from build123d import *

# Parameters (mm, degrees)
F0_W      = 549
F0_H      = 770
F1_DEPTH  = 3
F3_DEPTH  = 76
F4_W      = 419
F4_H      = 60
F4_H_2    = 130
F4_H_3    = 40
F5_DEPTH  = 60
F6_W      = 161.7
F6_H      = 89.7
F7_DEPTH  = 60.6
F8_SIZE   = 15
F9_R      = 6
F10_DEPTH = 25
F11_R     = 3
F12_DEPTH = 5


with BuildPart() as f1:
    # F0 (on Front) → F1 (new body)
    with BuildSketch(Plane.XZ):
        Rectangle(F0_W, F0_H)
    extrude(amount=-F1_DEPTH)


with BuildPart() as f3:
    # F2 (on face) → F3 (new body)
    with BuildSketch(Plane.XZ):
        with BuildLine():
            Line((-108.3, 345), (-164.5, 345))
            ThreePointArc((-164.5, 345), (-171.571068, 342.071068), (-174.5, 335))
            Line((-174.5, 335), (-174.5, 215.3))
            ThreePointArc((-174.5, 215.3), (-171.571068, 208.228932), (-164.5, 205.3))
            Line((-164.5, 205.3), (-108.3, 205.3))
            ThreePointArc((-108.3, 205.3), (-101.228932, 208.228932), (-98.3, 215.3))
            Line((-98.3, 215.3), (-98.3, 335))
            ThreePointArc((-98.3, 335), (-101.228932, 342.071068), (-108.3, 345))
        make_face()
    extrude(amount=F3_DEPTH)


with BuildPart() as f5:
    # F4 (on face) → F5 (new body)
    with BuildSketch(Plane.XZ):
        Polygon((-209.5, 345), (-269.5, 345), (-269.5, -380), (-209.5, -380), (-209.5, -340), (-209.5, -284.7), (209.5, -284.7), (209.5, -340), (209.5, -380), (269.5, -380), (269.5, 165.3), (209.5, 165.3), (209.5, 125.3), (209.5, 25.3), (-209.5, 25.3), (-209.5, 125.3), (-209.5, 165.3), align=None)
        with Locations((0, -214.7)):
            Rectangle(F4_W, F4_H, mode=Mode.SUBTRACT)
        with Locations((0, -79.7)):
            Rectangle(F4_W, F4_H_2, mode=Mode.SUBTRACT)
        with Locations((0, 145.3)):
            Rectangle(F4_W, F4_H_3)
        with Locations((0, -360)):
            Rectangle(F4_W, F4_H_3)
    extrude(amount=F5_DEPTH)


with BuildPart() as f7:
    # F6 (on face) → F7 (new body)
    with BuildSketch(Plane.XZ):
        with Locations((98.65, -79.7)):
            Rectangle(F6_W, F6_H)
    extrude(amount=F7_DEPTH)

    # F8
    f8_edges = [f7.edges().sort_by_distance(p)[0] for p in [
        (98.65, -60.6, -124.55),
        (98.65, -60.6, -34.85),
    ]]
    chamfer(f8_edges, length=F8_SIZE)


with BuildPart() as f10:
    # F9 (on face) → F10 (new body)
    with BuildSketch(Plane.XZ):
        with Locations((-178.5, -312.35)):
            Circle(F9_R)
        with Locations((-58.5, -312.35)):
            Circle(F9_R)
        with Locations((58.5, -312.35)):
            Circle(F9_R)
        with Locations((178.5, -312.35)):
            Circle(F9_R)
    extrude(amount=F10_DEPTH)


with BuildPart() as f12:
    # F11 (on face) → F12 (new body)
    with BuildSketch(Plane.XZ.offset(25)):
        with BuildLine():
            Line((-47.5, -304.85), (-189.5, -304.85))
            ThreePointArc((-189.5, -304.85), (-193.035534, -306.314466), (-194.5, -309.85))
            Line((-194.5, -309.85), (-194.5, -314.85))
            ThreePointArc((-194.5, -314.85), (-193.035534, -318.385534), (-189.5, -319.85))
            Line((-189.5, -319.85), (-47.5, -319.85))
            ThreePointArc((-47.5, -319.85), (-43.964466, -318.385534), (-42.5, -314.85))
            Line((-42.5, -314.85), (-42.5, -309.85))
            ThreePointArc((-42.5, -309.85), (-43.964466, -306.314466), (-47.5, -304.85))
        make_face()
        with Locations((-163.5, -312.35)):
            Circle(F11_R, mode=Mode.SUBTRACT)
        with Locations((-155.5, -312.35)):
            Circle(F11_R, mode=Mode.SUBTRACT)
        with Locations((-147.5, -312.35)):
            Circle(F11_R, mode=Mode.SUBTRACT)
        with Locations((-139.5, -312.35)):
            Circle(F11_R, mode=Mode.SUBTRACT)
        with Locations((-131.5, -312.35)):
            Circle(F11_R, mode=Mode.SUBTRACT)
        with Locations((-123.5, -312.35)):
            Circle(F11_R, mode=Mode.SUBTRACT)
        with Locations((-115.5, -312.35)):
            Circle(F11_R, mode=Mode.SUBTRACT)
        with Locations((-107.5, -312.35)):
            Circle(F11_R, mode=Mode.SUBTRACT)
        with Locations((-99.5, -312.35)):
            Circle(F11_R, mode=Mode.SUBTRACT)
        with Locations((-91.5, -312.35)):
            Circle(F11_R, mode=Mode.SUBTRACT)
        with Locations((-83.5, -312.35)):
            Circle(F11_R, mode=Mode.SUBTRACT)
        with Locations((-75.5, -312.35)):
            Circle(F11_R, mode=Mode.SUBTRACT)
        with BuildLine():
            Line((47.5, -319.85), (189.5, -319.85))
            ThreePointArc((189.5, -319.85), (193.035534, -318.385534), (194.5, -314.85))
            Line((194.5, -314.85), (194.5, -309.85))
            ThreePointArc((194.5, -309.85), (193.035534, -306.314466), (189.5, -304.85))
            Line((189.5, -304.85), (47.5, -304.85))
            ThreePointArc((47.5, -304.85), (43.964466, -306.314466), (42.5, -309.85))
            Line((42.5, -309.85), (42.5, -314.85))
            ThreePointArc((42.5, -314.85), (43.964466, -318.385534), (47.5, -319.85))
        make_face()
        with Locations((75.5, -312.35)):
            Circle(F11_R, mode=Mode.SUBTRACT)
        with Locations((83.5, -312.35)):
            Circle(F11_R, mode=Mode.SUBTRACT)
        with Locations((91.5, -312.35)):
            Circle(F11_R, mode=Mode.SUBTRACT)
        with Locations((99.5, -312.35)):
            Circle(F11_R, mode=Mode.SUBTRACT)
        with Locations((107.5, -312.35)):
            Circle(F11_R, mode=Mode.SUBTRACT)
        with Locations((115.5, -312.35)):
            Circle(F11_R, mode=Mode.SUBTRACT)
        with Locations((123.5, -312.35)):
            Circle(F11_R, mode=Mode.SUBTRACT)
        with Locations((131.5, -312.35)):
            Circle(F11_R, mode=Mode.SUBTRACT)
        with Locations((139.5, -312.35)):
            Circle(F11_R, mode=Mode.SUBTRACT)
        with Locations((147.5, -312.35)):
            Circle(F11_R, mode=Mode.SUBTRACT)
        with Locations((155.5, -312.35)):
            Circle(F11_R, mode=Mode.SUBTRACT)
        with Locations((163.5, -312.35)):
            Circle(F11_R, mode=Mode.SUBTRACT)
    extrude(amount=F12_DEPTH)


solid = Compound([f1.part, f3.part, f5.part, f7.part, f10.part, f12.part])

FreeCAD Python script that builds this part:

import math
import FreeCAD as App
import Part
import Sketcher
Q = App.Units.Quantity


def edges_at(feature, points):
    """Names of the edges that pass closest to the given points."""
    edges = feature.Shape.Edges
    near = lambda p: min(range(len(edges)), key=lambda i: edges[i].distToShape(Part.Vertex(*p))[0])
    return sorted({f"Edge{near(p) + 1}" for p in points})


def add_polygon(sketch, points):
    """Adds a closed chain of lines whose ends are joined by coincident constraints."""
    first, n = sketch.GeometryCount, len(points)
    for a, b in zip(points, points[1:] + points[:1]):
        sketch.addGeometry(Part.LineSegment(App.Vector(*a, 0), App.Vector(*b, 0)), False)
    for i in range(n):
        sketch.addConstraint(Sketcher.Constraint("Coincident", first + i, 2, first + (i + 1) % n, 1))

doc = App.newDocument("Part")
body = doc.addObject("PartDesign::Body", "Body")

# Sketch on XZ plane
sketch1 = doc.addObject("Sketcher::SketchObject", "Sketch")
body.addObject(sketch1)
sketch1.AttachmentSupport = (doc.XZ_Plane, [""])
sketch1.MapMode = "FlatFace"
add_polygon(sketch1, [(-274, 385), (-274, -385), (274, -385), (274, 385)])  # lines 0-3
sketch1.addConstraint([
    Sketcher.Constraint("Vertical", 0),
    Sketcher.Constraint("Horizontal", 1),
    Sketcher.Constraint("Vertical", 2),
    Sketcher.Constraint("Horizontal", 3),
    Sketcher.Constraint("Symmetric", 0, 2, 2, 2, -1, 1),
    Sketcher.Constraint("DistanceX", 1, 1, 1, 2, Q("549 mm")),
    Sketcher.Constraint("DistanceY", 0, 2, 0, 1, Q("770 mm")),
])
pad1 = doc.addObject("PartDesign::Pad", "Pad")
body.addObject(pad1)
pad1.Profile = sketch1
pad1.Length = 3
pad1.Reversed = True
body2 = doc.addObject("PartDesign::Body", "Body001")

# Sketch on XZ plane
sketch2 = doc.addObject("Sketcher::SketchObject", "Sketch001")
body2.addObject(sketch2)
sketch2.AttachmentSupport = (doc.getObject("XZ_Plane001"), [""])
sketch2.MapMode = "FlatFace"
sketch2.addGeometry([
    Part.LineSegment(App.Vector(-108, 345, 0), App.Vector(-164, 345, 0)),  # 0
    Part.ArcOfCircle(Part.Circle(App.Vector(-165, 335, 0), App.Vector(0, 0, 1), 10), math.radians(90), math.radians(180)),  # 1
    Part.LineSegment(App.Vector(-174, 335, 0), App.Vector(-174, 215, 0)),  # 2
    Part.ArcOfCircle(Part.Circle(App.Vector(-165, 215, 0), App.Vector(0, 0, 1), 10), math.radians(180), math.radians(270)),  # 3
    Part.LineSegment(App.Vector(-164, 205, 0), App.Vector(-108, 205, 0)),  # 4
    Part.ArcOfCircle(Part.Circle(App.Vector(-108, 215, 0), App.Vector(0, 0, 1), 10), math.radians(-90), math.radians(0)),  # 5
    Part.LineSegment(App.Vector(-98, 215, 0), App.Vector(-98, 335, 0)),  # 6
    Part.ArcOfCircle(Part.Circle(App.Vector(-108, 335, 0), App.Vector(0, 0, 1), 10), math.radians(0), math.radians(90)),  # 7
], False)
sketch2.addConstraint([
    Sketcher.Constraint("Tangent", 0, 2, 1, 1),
    Sketcher.Constraint("Tangent", 1, 2, 2, 1),
    Sketcher.Constraint("Tangent", 2, 2, 3, 1),
    Sketcher.Constraint("Tangent", 3, 2, 4, 1),
    Sketcher.Constraint("Tangent", 4, 2, 5, 1),
    Sketcher.Constraint("Tangent", 5, 2, 6, 1),
    Sketcher.Constraint("Tangent", 6, 2, 7, 1),
    Sketcher.Constraint("Tangent", 7, 2, 0, 1),
    Sketcher.Constraint("Horizontal", 0),
    Sketcher.Constraint("Vertical", 2),
    Sketcher.Constraint("Horizontal", 4),
    Sketcher.Constraint("Vertical", 6),
    Sketcher.Constraint("Equal", 1, 3),
    Sketcher.Constraint("Equal", 3, 5),
    Sketcher.Constraint("Equal", 5, 7),
    Sketcher.Constraint("Radius", 1, Q("9.999999 mm")),
    Sketcher.Constraint("DistanceX", 0, 2, 0, 1, Q("56.2 mm")),
    Sketcher.Constraint("DistanceY", 2, 2, 2, 1, Q("119.7 mm")),
    Sketcher.Constraint("DistanceY", -1, 1, 1, 3, Q("335.000001 mm")),
    Sketcher.Constraint("DistanceX", 1, 3, -1, 1, Q("164.500001 mm")),
])
pad2 = doc.addObject("PartDesign::Pad", "Pad001")
body2.addObject(pad2)
pad2.Profile = sketch2
pad2.Length = 76
body3 = doc.addObject("PartDesign::Body", "Body002")

# Sketch on XZ plane
sketch3 = doc.addObject("Sketcher::SketchObject", "Sketch002")
body3.addObject(sketch3)
sketch3.AttachmentSupport = (doc.getObject("XZ_Plane002"), [""])
sketch3.MapMode = "FlatFace"
add_polygon(sketch3, [(-210, 345), (-270, 345), (-270, -380), (270, -380), (270, 165), (-210, 165)])  # lines 0-5
add_polygon(sketch3, [(-210, -340), (-210, -285), (210, -285), (210, -340)])  # lines 6-9
add_polygon(sketch3, [(-210, 25), (-210, 125), (210, 125), (210, 25)])  # lines 10-13
add_polygon(sketch3, [(210, -245), (-210, -245), (-210, -185), (210, -185)])  # lines 14-17
add_polygon(sketch3, [(210, -145), (-210, -145), (-210, -15), (210, -15)])  # lines 18-21
sketch3.addConstraint([
    Sketcher.Constraint("Horizontal", 0),
    Sketcher.Constraint("Vertical", 1),
    Sketcher.Constraint("Horizontal", 2),
    Sketcher.Constraint("Vertical", 3),
    Sketcher.Constraint("Horizontal", 4),
    Sketcher.Constraint("Vertical", 5),
    Sketcher.Constraint("Vertical", 6),
    Sketcher.Constraint("Horizontal", 7),
    Sketcher.Constraint("Vertical", 8),
    Sketcher.Constraint("Horizontal", 9),
    Sketcher.Constraint("Vertical", 10),
    Sketcher.Constraint("Horizontal", 11),
    Sketcher.Constraint("Vertical", 12),
    Sketcher.Constraint("Horizontal", 13),
    Sketcher.Constraint("Horizontal", 14),
    Sketcher.Constraint("Vertical", 15),
    Sketcher.Constraint("Horizontal", 16),
    Sketcher.Constraint("Vertical", 17),
    Sketcher.Constraint("Horizontal", 18),
    Sketcher.Constraint("Vertical", 19),
    Sketcher.Constraint("Horizontal", 20),
    Sketcher.Constraint("Vertical", 21),
    Sketcher.Constraint("Vertical", 5, 2, 6, 2),
    Sketcher.Constraint("Vertical", 9, 2, 10, 2),
    Sketcher.Constraint("Vertical", 8, 2, 11, 2),
    Sketcher.Constraint("Vertical", 13, 2, 14, 2),
    Sketcher.Constraint("Vertical", 12, 2, 16, 2),
    Sketcher.Constraint("Vertical", 15, 2, 18, 2),
    Sketcher.Constraint("Vertical", 17, 2, 20, 2),
    Sketcher.Constraint("Equal", 0, 15),
    Sketcher.Constraint("DistanceX", 0, 2, 0, 1, Q("60 mm")),
    Sketcher.Constraint("DistanceX", 2, 1, 2, 2, Q("539 mm")),
    Sketcher.Constraint("DistanceX", 7, 1, 7, 2, Q("419 mm")),
    Sketcher.Constraint("DistanceY", 1, 2, 1, 1, Q("725 mm")),
    Sketcher.Constraint("DistanceY", 10, 1, 10, 2, Q("100 mm")),
    Sketcher.Constraint("DistanceY", 19, 1, 19, 2, Q("130 mm")),
    Sketcher.Constraint("DistanceY", 3, 1, 3, 2, Q("545.3 mm")),
    Sketcher.Constraint("DistanceY", 6, 1, 6, 2, Q("55.3 mm")),
    Sketcher.Constraint("DistanceY", -1, 1, 0, 2, Q("345 mm")),
    Sketcher.Constraint("DistanceY", 8, 2, -1, 1, Q("340 mm")),
    Sketcher.Constraint("DistanceY", 10, 2, 4, 2, Q("40 mm")),
    Sketcher.Constraint("DistanceY", 6, 2, 14, 2, Q("40 mm")),
    Sketcher.Constraint("DistanceY", 15, 2, 18, 2, Q("40 mm")),
    Sketcher.Constraint("DistanceX", 0, 2, -1, 1, Q("269.5 mm")),
])
pad3 = doc.addObject("PartDesign::Pad", "Pad002")
body3.addObject(pad3)
pad3.Profile = sketch3
pad3.Length = 60
body4 = doc.addObject("PartDesign::Body", "Body003")

# Sketch on XZ plane
sketch4 = doc.addObject("Sketcher::SketchObject", "Sketch003")
body4.addObject(sketch4)
sketch4.AttachmentSupport = (doc.getObject("XZ_Plane003"), [""])
sketch4.MapMode = "FlatFace"
add_polygon(sketch4, [(18, -35), (18, -125), (180, -125), (180, -35)])  # lines 0-3
sketch4.addConstraint([
    Sketcher.Constraint("Vertical", 0),
    Sketcher.Constraint("Horizontal", 1),
    Sketcher.Constraint("Vertical", 2),
    Sketcher.Constraint("Horizontal", 3),
    Sketcher.Constraint("DistanceX", 1, 1, 1, 2, Q("161.7 mm")),
    Sketcher.Constraint("DistanceY", 0, 2, 0, 1, Q("89.7 mm")),
    Sketcher.Constraint("DistanceX", -1, 1, 0, 2, Q("17.8 mm")),
    Sketcher.Constraint("DistanceY", 0, 2, -1, 1, Q("124.55 mm")),
])
pad4 = doc.addObject("PartDesign::Pad", "Pad003")
body4.addObject(pad4)
pad4.Profile = sketch4
pad4.Length = 60.6
doc.recompute()

chamfer = doc.addObject("PartDesign::Chamfer", "Chamfer")
body4.addObject(chamfer)
chamfer.Base = (pad4, edges_at(pad4, [(98.65, -60.6, -124.55), (98.65, -60.6, -34.85)]))
chamfer.Size = 15
body5 = doc.addObject("PartDesign::Body", "Body004")
body5.AllowCompound = True

# Sketch on XZ plane
sketch5 = doc.addObject("Sketcher::SketchObject", "Sketch004")
body5.addObject(sketch5)
sketch5.AttachmentSupport = (doc.getObject("XZ_Plane004"), [""])
sketch5.MapMode = "FlatFace"
sketch5.addGeometry([
    Part.Circle(App.Vector(-178, -312, 0), App.Vector(0, 0, 1), 6),
    Part.Circle(App.Vector(-58, -312, 0), App.Vector(0, 0, 1), 6),
    Part.Circle(App.Vector(58, -312, 0), App.Vector(0, 0, 1), 6),
    Part.Circle(App.Vector(178, -312, 0), App.Vector(0, 0, 1), 6),
], False)
sketch5.addConstraint([
    Sketcher.Constraint("Equal", 0, 1),
    Sketcher.Constraint("Equal", 1, 2),
    Sketcher.Constraint("Equal", 2, 3),
    Sketcher.Constraint("Symmetric", 1, 3, 2, 3, -2),
    Sketcher.Constraint("Symmetric", 0, 3, 3, 3, -2),
    Sketcher.Constraint("Horizontal", 0, 3, 1, 3),
    Sketcher.Constraint("Diameter", 0, Q("12 mm")),
    Sketcher.Constraint("DistanceX", 0, 3, 1, 3, Q("120 mm")),
    Sketcher.Constraint("DistanceX", 1, 3, 2, 3, Q("117 mm")),
    Sketcher.Constraint("DistanceY", 0, 3, -1, 1, Q("312.35 mm")),
])
pad5 = doc.addObject("PartDesign::Pad", "Pad004")
body5.addObject(pad5)
pad5.Profile = sketch5
pad5.Length = 25
body6 = doc.addObject("PartDesign::Body", "Body005")
body6.AllowCompound = True

# Sketch on XZ plane
sketch6 = doc.addObject("Sketcher::SketchObject", "Sketch005")
body6.addObject(sketch6)
sketch6.AttachmentSupport = (doc.getObject("XZ_Plane005"), [""])
sketch6.MapMode = "FlatFace"
sketch6.AttachmentOffset = App.Placement(App.Vector(0, 0, 25), App.Rotation())
sketch6.addGeometry([
    Part.LineSegment(App.Vector(-47.5, -304.9, 0), App.Vector(-189.5, -304.9, 0)),  # 0
    Part.ArcOfCircle(Part.Circle(App.Vector(-189.5, -309.8, 0), App.Vector(0, 0, 1), 5), math.radians(90), math.radians(180)),  # 1
    Part.LineSegment(App.Vector(-194.5, -309.9, 0), App.Vector(-194.5, -314.9, 0)),  # 2
    Part.ArcOfCircle(Part.Circle(App.Vector(-189.5, -314.9, 0), App.Vector(0, 0, 1), 5), math.radians(180), math.radians(270)),  # 3
    Part.LineSegment(App.Vector(-189.5, -319.9, 0), App.Vector(-47.5, -319.9, 0)),  # 4
    Part.ArcOfCircle(Part.Circle(App.Vector(-47.5, -314.9, 0), App.Vector(0, 0, 1), 5), math.radians(-90), math.radians(0)),  # 5
    Part.LineSegment(App.Vector(-42.5, -314.9, 0), App.Vector(-42.5, -309.9, 0)),  # 6
    Part.ArcOfCircle(Part.Circle(App.Vector(-47.5, -309.8, 0), App.Vector(0, 0, 1), 5), math.radians(0), math.radians(90)),  # 7
    Part.Circle(App.Vector(-163.5, -312.4, 0), App.Vector(0, 0, 1), 3),  # 8
    Part.Circle(App.Vector(-155.5, -312.4, 0), App.Vector(0, 0, 1), 3),  # 9
    Part.Circle(App.Vector(-147.5, -312.4, 0), App.Vector(0, 0, 1), 3),  # 10
    Part.Circle(App.Vector(-139.5, -312.4, 0), App.Vector(0, 0, 1), 3),  # 11
    Part.Circle(App.Vector(-131.5, -312.4, 0), App.Vector(0, 0, 1), 3),  # 12
    Part.Circle(App.Vector(-123.5, -312.4, 0), App.Vector(0, 0, 1), 3),  # 13
    Part.Circle(App.Vector(-115.5, -312.4, 0), App.Vector(0, 0, 1), 3),  # 14
    Part.Circle(App.Vector(-107.5, -312.4, 0), App.Vector(0, 0, 1), 3),  # 15
    Part.Circle(App.Vector(-99.5, -312.4, 0), App.Vector(0, 0, 1), 3),  # 16
    Part.Circle(App.Vector(-91.5, -312.4, 0), App.Vector(0, 0, 1), 3),  # 17
    Part.Circle(App.Vector(-83.5, -312.4, 0), App.Vector(0, 0, 1), 3),  # 18
    Part.Circle(App.Vector(-75.5, -312.4, 0), App.Vector(0, 0, 1), 3),  # 19
    Part.LineSegment(App.Vector(47.5, -319.9, 0), App.Vector(189.5, -319.9, 0)),  # 20
    Part.ArcOfCircle(Part.Circle(App.Vector(189.5, -314.9, 0), App.Vector(0, 0, 1), 5), math.radians(-90), math.radians(0)),  # 21
    Part.LineSegment(App.Vector(194.5, -314.9, 0), App.Vector(194.5, -309.9, 0)),  # 22
    Part.ArcOfCircle(Part.Circle(App.Vector(189.5, -309.8, 0), App.Vector(0, 0, 1), 5), math.radians(0), math.radians(90)),  # 23
    Part.LineSegment(App.Vector(189.5, -304.9, 0), App.Vector(47.5, -304.9, 0)),  # 24
    Part.ArcOfCircle(Part.Circle(App.Vector(47.5, -309.8, 0), App.Vector(0, 0, 1), 5), math.radians(90), math.radians(180)),  # 25
    Part.LineSegment(App.Vector(42.5, -309.9, 0), App.Vector(42.5, -314.9, 0)),  # 26
    Part.ArcOfCircle(Part.Circle(App.Vector(47.5, -314.9, 0), App.Vector(0, 0, 1), 5), math.radians(180), math.radians(270)),  # 27
    Part.Circle(App.Vector(75.5, -312.4, 0), App.Vector(0, 0, 1), 3),  # 28
    Part.Circle(App.Vector(83.5, -312.4, 0), App.Vector(0, 0, 1), 3),  # 29
    Part.Circle(App.Vector(91.5, -312.4, 0), App.Vector(0, 0, 1), 3),  # 30
    Part.Circle(App.Vector(99.5, -312.4, 0), App.Vector(0, 0, 1), 3),  # 31
    Part.Circle(App.Vector(107.5, -312.4, 0), App.Vector(0, 0, 1), 3),  # 32
    Part.Circle(App.Vector(115.5, -312.4, 0), App.Vector(0, 0, 1), 3),  # 33
    Part.Circle(App.Vector(123.5, -312.4, 0), App.Vector(0, 0, 1), 3),  # 34
    Part.Circle(App.Vector(131.5, -312.4, 0), App.Vector(0, 0, 1), 3),  # 35
    Part.Circle(App.Vector(139.5, -312.4, 0), App.Vector(0, 0, 1), 3),  # 36
    Part.Circle(App.Vector(147.5, -312.4, 0), App.Vector(0, 0, 1), 3),  # 37
    Part.Circle(App.Vector(155.5, -312.4, 0), App.Vector(0, 0, 1), 3),  # 38
    Part.Circle(App.Vector(163.5, -312.4, 0), App.Vector(0, 0, 1), 3),  # 39
], False)
sketch6.addConstraint([
    Sketcher.Constraint("Tangent", 0, 2, 1, 1),
    Sketcher.Constraint("Tangent", 1, 2, 2, 1),
    Sketcher.Constraint("Tangent", 2, 2, 3, 1),
    Sketcher.Constraint("Tangent", 3, 2, 4, 1),
    Sketcher.Constraint("Tangent", 4, 2, 5, 1),
    Sketcher.Constraint("Tangent", 5, 2, 6, 1),
    Sketcher.Constraint("Tangent", 6, 2, 7, 1),
    Sketcher.Constraint("Tangent", 7, 2, 0, 1),
    Sketcher.Constraint("Tangent", 20, 2, 21, 1),
    Sketcher.Constraint("Tangent", 21, 2, 22, 1),
    Sketcher.Constraint("Tangent", 22, 2, 23, 1),
    Sketcher.Constraint("Tangent", 23, 2, 24, 1),
    Sketcher.Constraint("Tangent", 24, 2, 25, 1),
    Sketcher.Constraint("Tangent", 25, 2, 26, 1),
    Sketcher.Constraint("Tangent", 26, 2, 27, 1),
    Sketcher.Constraint("Tangent", 27, 2, 20, 1),
    Sketcher.Constraint("Horizontal", 0),
    Sketcher.Constraint("Vertical", 2),
    Sketcher.Constraint("Horizontal", 4),
    Sketcher.Constraint("Vertical", 6),
    Sketcher.Constraint("Horizontal", 20),
    Sketcher.Constraint("Vertical", 22),
    Sketcher.Constraint("Horizontal", 24),
    Sketcher.Constraint("Vertical", 26),
    Sketcher.Constraint("Equal", 1, 3),
    Sketcher.Constraint("Equal", 3, 5),
    Sketcher.Constraint("Equal", 5, 7),
    Sketcher.Constraint("Equal", 8, 9),
    Sketcher.Constraint("Equal", 9, 10),
    Sketcher.Constraint("Equal", 10, 11),
    Sketcher.Constraint("Equal", 11, 12),
    Sketcher.Constraint("Equal", 12, 13),
    Sketcher.Constraint("Equal", 13, 14),
    Sketcher.Constraint("Equal", 14, 15),
    Sketcher.Constraint("Equal", 15, 16),
    Sketcher.Constraint("Equal", 16, 17),
    Sketcher.Constraint("Equal", 17, 18),
    Sketcher.Constraint("Equal", 18, 19),
    Sketcher.Constraint("Equal", 7, 21),
    Sketcher.Constraint("Equal", 21, 23),
    Sketcher.Constraint("Equal", 23, 25),
    Sketcher.Constraint("Equal", 25, 27),
    Sketcher.Constraint("Equal", 19, 28),
    Sketcher.Constraint("Equal", 28, 29),
    Sketcher.Constraint("Equal", 29, 30),
    Sketcher.Constraint("Equal", 30, 31),
    Sketcher.Constraint("Equal", 31, 32),
    Sketcher.Constraint("Equal", 32, 33),
    Sketcher.Constraint("Equal", 33, 34),
    Sketcher.Constraint("Equal", 34, 35),
    Sketcher.Constraint("Equal", 35, 36),
    Sketcher.Constraint("Equal", 36, 37),
    Sketcher.Constraint("Equal", 37, 38),
    Sketcher.Constraint("Equal", 38, 39),
    Sketcher.Constraint("Symmetric", 3, 3, 21, 3, -2),
    Sketcher.Constraint("Symmetric", 7, 3, 25, 3, -2),
    Sketcher.Constraint("Symmetric", 19, 3, 28, 3, -2),
    Sketcher.Constraint("Symmetric", 18, 3, 29, 3, -2),
    Sketcher.Constraint("Symmetric", 17, 3, 30, 3, -2),
    Sketcher.Constraint("Symmetric", 16, 3, 31, 3, -2),
    Sketcher.Constraint("Symmetric", 15, 3, 32, 3, -2),
    Sketcher.Constraint("Symmetric", 14, 3, 33, 3, -2),
    Sketcher.Constraint("Symmetric", 13, 3, 34, 3, -2),
    Sketcher.Constraint("Symmetric", 12, 3, 35, 3, -2),
    Sketcher.Constraint("Symmetric", 11, 3, 36, 3, -2),
    Sketcher.Constraint("Symmetric", 10, 3, 37, 3, -2),
    Sketcher.Constraint("Symmetric", 9, 3, 38, 3, -2),
    Sketcher.Constraint("Symmetric", 8, 3, 39, 3, -2),
    Sketcher.Constraint("Horizontal", 8, 3, 9, 3),
    Sketcher.Constraint("Horizontal", 9, 3, 10, 3),
    Sketcher.Constraint("Horizontal", 10, 3, 11, 3),
    Sketcher.Constraint("Horizontal", 11, 3, 12, 3),
    Sketcher.Constraint("Horizontal", 12, 3, 13, 3),
    Sketcher.Constraint("Horizontal", 13, 3, 14, 3),
    Sketcher.Constraint("Horizontal", 14, 3, 15, 3),
    Sketcher.Constraint("Horizontal", 15, 3, 16, 3),
    Sketcher.Constraint("Horizontal", 16, 3, 17, 3),
    Sketcher.Constraint("Horizontal", 17, 3, 18, 3),
    Sketcher.Constraint("Horizontal", 18, 3, 19, 3),
    Sketcher.Constraint("Diameter", 8, Q("6 mm")),
    Sketcher.Constraint("Radius", 1, Q("5 mm")),
    Sketcher.Constraint("DistanceX", 0, 2, 0, 1, Q("142 mm")),
    Sketcher.Constraint("DistanceY", 2, 2, 2, 1, Q("5 mm")),
    Sketcher.Constraint("DistanceX", 3, 3, 8, 3, Q("26 mm")),
    Sketcher.Constraint("DistanceX", 8, 3, 9, 3, Q("8 mm")),
    Sketcher.Constraint("DistanceX", 9, 3, 10, 3, Q("8 mm")),
    Sketcher.Constraint("DistanceX", 10, 3, 11, 3, Q("8 mm")),
    Sketcher.Constraint("DistanceX", 11, 3, 12, 3, Q("8 mm")),
    Sketcher.Constraint("DistanceX", 12, 3, 13, 3, Q("8 mm")),
    Sketcher.Constraint("DistanceX", 13, 3, 14, 3, Q("8 mm")),
    Sketcher.Constraint("DistanceX", 14, 3, 15, 3, Q("8 mm")),
    Sketcher.Constraint("DistanceX", 15, 3, 16, 3, Q("8 mm")),
    Sketcher.Constraint("DistanceX", 16, 3, 17, 3, Q("8 mm")),
    Sketcher.Constraint("DistanceX", 17, 3, 18, 3, Q("8 mm")),
    Sketcher.Constraint("DistanceX", 18, 3, 19, 3, Q("8 mm")),
    Sketcher.Constraint("DistanceX", 5, 3, 21, 3, Q("237 mm")),
    Sketcher.Constraint("DistanceY", 3, 3, 8, 3, Q("2.5 mm")),
    Sketcher.Constraint("DistanceY", 1, 3, -1, 1, Q("309.85 mm")),
])
pad6 = doc.addObject("PartDesign::Pad", "Pad005")
body6.addObject(pad6)
pad6.Profile = sketch6
pad6.Length = 5

doc.recompute()
